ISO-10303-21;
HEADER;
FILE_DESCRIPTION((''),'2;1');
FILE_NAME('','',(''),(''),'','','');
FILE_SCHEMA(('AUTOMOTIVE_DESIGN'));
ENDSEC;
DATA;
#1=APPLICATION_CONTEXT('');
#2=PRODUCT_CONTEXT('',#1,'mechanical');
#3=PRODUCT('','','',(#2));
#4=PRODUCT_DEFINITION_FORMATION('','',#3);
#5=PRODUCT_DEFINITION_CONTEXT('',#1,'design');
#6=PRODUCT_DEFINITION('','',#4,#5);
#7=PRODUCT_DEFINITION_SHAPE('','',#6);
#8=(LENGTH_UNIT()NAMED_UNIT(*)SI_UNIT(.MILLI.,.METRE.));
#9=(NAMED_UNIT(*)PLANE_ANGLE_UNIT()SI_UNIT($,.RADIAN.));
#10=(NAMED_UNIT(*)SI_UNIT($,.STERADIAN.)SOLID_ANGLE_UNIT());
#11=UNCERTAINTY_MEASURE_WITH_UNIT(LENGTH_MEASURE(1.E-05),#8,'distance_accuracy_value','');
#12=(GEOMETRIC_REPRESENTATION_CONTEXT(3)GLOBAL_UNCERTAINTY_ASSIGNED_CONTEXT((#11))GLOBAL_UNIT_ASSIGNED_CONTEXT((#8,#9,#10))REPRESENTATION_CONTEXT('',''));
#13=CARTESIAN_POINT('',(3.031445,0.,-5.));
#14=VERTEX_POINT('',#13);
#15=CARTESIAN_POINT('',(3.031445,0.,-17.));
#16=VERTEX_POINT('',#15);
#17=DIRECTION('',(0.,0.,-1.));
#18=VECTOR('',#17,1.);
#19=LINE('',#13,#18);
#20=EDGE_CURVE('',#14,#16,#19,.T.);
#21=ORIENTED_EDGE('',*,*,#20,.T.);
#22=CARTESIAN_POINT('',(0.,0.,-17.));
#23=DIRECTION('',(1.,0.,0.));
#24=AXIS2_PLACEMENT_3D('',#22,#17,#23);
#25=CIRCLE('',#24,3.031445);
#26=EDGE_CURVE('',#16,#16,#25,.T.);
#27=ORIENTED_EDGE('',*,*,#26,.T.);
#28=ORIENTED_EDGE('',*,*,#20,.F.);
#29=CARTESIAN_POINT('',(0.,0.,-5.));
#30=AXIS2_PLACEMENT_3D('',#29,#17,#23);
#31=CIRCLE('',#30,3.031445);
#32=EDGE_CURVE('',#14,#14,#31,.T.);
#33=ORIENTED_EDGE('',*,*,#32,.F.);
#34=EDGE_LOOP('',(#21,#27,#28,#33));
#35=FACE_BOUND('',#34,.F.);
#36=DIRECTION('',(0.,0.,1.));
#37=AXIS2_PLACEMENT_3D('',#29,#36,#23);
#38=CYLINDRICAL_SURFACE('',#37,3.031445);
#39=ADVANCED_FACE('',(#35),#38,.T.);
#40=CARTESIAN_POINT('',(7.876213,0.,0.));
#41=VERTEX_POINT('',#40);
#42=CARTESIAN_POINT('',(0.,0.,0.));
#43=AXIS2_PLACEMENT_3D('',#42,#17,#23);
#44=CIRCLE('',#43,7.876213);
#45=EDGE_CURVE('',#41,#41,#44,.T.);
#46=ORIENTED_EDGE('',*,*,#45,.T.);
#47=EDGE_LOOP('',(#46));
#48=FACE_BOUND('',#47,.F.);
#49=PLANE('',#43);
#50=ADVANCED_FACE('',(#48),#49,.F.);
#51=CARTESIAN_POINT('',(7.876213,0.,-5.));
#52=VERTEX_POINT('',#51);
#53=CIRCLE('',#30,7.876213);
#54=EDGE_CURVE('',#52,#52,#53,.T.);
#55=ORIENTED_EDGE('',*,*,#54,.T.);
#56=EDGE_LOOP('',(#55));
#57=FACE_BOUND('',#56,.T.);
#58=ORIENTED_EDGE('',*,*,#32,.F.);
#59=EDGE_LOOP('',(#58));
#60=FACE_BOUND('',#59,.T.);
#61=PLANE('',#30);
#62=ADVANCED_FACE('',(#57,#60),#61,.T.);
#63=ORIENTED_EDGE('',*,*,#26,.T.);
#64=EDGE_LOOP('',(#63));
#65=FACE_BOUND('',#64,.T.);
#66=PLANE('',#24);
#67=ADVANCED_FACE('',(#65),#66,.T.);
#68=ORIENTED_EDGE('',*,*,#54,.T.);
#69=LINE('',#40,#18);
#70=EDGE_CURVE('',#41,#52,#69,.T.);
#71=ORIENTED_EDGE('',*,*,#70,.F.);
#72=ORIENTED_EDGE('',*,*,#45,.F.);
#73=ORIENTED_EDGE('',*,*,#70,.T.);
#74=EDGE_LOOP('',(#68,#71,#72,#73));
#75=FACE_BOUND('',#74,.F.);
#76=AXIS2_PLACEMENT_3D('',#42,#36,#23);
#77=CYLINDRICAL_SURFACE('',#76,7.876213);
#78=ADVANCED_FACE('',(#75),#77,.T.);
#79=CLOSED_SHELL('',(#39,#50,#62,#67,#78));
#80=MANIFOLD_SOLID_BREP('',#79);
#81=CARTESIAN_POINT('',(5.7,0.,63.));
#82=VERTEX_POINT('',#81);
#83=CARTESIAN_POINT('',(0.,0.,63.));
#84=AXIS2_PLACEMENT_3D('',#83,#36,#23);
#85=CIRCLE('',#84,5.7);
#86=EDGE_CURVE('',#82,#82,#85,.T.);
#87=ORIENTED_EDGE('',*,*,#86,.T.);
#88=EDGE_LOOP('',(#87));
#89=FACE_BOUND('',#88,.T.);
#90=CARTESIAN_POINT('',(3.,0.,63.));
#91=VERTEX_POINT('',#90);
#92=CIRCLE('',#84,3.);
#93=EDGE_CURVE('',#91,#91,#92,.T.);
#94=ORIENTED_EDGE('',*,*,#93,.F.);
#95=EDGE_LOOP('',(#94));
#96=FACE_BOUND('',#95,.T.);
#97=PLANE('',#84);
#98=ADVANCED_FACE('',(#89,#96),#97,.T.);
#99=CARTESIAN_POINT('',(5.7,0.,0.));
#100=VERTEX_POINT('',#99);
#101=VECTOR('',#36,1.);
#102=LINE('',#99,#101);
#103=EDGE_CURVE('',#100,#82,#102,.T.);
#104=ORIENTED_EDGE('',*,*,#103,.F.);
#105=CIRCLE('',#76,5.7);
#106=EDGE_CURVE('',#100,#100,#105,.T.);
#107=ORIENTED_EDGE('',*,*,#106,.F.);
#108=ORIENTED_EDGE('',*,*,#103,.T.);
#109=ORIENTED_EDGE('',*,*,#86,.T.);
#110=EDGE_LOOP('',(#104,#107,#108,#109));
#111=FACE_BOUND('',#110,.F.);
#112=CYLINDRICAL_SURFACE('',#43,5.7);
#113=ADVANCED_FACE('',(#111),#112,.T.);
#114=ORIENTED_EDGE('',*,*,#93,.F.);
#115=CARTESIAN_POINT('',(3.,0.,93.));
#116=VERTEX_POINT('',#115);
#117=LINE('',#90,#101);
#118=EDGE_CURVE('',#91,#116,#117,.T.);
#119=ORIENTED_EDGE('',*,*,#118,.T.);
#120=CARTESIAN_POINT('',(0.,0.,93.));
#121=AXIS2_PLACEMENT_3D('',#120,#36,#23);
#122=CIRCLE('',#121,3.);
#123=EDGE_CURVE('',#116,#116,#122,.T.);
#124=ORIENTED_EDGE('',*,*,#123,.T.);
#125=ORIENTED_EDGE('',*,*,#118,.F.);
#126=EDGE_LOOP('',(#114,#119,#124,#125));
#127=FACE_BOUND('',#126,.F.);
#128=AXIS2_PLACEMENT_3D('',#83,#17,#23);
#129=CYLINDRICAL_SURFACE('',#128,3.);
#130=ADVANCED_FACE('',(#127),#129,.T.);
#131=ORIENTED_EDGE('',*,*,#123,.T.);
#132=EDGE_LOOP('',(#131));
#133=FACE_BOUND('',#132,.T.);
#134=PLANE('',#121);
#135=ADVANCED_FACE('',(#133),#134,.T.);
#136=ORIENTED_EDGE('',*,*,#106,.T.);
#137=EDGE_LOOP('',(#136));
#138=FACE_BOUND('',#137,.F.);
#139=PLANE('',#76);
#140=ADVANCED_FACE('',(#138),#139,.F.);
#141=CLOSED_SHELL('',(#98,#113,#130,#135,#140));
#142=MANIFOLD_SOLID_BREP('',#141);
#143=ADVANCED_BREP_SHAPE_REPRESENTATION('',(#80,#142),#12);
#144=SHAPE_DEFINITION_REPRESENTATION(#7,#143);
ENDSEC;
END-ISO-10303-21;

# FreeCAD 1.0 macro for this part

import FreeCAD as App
import Part
import Sketcher
from FreeCAD import Vector
Q = App.Units.Quantity

doc = App.newDocument("Part")
body = doc.addObject("PartDesign::Body", "Body")

# Sketch on XY plane
sketch1 = body.newObject("Sketcher::SketchObject", "Sketch")
sketch1.AttachmentSupport = (doc.getObject("XY_Plane"), [""])
sketch1.MapMode = "FlatFace"
sketch1.addGeometry(Part.Circle(Vector(0, 0, 0), Vector(0, 0, 1), 5.7), False)
sketch1.addConstraint([
    Sketcher.Constraint("Coincident", 0, 3, -1, 1),
    Sketcher.Constraint("Diameter", 0, Q("11.4 mm")),
])
pad1 = body.newObject("PartDesign::Pad", "Pad")
pad1.Profile = sketch1
pad1.Length = 63

# Sketch on XY plane
sketch2 = body.newObject("Sketcher::SketchObject", "Sketch001")
sketch2.AttachmentSupport = (doc.getObject("XY_Plane"), [""])
sketch2.MapMode = "FlatFace"
sketch2.AttachmentOffset = App.Placement(Vector(0, 0, 63), App.Rotation())
sketch2.addGeometry(Part.Circle(Vector(0, 0, 0), Vector(0, 0, 1), 3), False)
sketch2.addConstraint([
    Sketcher.Constraint("Coincident", 0, 3, -1, 1),
    Sketcher.Constraint("Diameter", 0, Q("6 mm")),
])
pad2 = body.newObject("PartDesign::Pad", "Pad001")
pad2.Profile = sketch2
pad2.Length = 30
body2 = doc.addObject("PartDesign::Body", "Body001")

# Sketch on XY plane
sketch3 = body2.newObject("Sketcher::SketchObject", "Sketch002")
sketch3.AttachmentSupport = (doc.getObject("XY_Plane001"), [""])
sketch3.MapMode = "FlatFace"
sketch3.addGeometry(Part.Circle(Vector(0, 0, 0), Vector(0, 0, 1), 7.876213), False)
sketch3.addConstraint([
    Sketcher.Constraint("Coincident", 0, 3, -1, 1),
    Sketcher.Constraint("Diameter", 0, Q("15.752426 mm")),
])
pad3 = body2.newObject("PartDesign::Pad", "Pad002")
pad3.Profile = sketch3
pad3.Length = 5
pad3.Reversed = True

# Sketch on XY plane
sketch4 = body2.newObject("Sketcher::SketchObject", "Sketch003")
sketch4.AttachmentSupport = (doc.getObject("XY_Plane001"), [""])
sketch4.MapMode = "FlatFace"
sketch4.AttachmentOffset = App.Placement(Vector(0, 0, -5), App.Rotation())
sketch4.addGeometry(Part.Circle(Vector(0, 0, 0), Vector(0, 0, 1), 3.031445), False)
sketch4.addConstraint([
    Sketcher.Constraint("Coincident", 0, 3, -1, 1),
    Sketcher.Constraint("Diameter", 0, Q("6.06289 mm")),
])
pad4 = body2.newObject("PartDesign::Pad", "Pad003")
pad4.Profile = sketch4
pad4.Length = 12
pad4.Reversed = True

doc.recompute()
